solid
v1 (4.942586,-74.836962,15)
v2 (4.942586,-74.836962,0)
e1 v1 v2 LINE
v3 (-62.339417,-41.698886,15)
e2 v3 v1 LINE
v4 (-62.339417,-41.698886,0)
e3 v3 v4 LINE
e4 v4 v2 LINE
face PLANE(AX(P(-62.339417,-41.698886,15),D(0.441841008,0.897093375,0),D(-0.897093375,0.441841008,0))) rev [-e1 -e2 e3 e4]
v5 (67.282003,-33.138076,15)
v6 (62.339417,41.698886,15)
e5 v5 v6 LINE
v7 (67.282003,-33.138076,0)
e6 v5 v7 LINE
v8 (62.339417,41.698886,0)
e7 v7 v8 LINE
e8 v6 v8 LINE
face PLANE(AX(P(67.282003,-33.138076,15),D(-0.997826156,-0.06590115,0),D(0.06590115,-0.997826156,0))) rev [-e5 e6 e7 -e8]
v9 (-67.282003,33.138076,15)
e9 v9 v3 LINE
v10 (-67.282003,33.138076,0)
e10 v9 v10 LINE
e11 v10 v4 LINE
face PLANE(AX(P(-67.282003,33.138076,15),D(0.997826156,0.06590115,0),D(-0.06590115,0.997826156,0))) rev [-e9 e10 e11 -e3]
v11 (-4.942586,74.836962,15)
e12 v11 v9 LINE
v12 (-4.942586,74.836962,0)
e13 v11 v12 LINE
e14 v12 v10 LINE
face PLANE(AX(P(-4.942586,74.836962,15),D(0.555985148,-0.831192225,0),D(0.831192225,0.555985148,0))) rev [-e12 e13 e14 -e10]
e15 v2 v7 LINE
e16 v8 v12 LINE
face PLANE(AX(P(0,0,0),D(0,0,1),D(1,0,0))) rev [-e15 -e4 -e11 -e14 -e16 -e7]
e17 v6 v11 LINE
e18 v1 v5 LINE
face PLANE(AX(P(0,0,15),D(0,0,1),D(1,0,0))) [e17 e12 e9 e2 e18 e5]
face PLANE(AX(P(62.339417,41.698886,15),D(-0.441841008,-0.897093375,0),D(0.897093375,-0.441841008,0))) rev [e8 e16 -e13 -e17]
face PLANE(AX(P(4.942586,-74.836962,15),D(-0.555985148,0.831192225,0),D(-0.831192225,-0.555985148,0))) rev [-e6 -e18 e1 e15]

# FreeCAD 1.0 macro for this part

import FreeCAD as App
import Part
import Sketcher

doc = App.newDocument("Part")
params = doc.addObject("Spreadsheet::Sheet", "Params")
for row, (alias, value) in enumerate([
    ("sketch1_length", "75 mm"),
    ("pad1_length", "15 mm"),
], start=1):
    params.set(f"A{row}", alias)
    params.set(f"B{row}", "=" + value)
    params.setAlias(f"B{row}", alias)

body = doc.addObject("PartDesign::Body", "Body")

sketch1 = body.newObject("Sketcher::SketchObject", "Sketch")
sketch1.AttachmentSupport = (doc.getObject("XY_Plane"), [""])
sketch1.MapMode = "FlatFace"
sketch1.addGeometry([
    Part.LineSegment(App.Vector(62, 42, 0), App.Vector(-5, 75, 0)),
    Part.LineSegment(App.Vector(-5, 75, 0), App.Vector(-67, 33, 0)),
    Part.LineSegment(App.Vector(-67, 33, 0), App.Vector(-62, -42, 0)),
    Part.LineSegment(App.Vector(-62, -42, 0), App.Vector(5, -75, 0)),
    Part.LineSegment(App.Vector(5, -75, 0), App.Vector(67, -33, 0)),
    Part.LineSegment(App.Vector(67, -33, 0), App.Vector(62, 42, 0)),
], False)
sketch1.addConstraint([
    Sketcher.Constraint("Coincident", 0, 2, 1, 1),
    Sketcher.Constraint("Coincident", 1, 2, 2, 1),
    Sketcher.Constraint("Coincident", 2, 2, 3, 1),
    Sketcher.Constraint("Coincident", 3, 2, 4, 1),
    Sketcher.Constraint("Coincident", 4, 2, 5, 1),
    Sketcher.Constraint("Coincident", 5, 2, 0, 1),
    Sketcher.Constraint("Symmetric", 0, 2, 3, 2, -1, 1),
    Sketcher.Constraint("Symmetric", 1, 2, 4, 2, -1, 1),
    Sketcher.Constraint("Symmetric", 2, 2, 5, 2, -1, 1),
    Sketcher.Constraint("Equal", 0, 1),
    Sketcher.Constraint("Equal", 1, 2),
    Sketcher.Constraint("Distance", 0, 75.0),
    Sketcher.Constraint("DistanceY", -1, 1, 0, 2, 74.836962),
    Sketcher.Constraint("DistanceY", 2, 2, 1, 2, 74.836962),
    Sketcher.Constraint("DistanceX", 2, 2, 0, 2, 57.396831),
])
sketch1.setExpression("Constraints[11]", "Params.sketch1_length")
pad1 = body.newObject("PartDesign::Pad", "Pad")
pad1.Profile = sketch1
pad1.setExpression("Length", "Params.pad1_length")

doc.recompute()
